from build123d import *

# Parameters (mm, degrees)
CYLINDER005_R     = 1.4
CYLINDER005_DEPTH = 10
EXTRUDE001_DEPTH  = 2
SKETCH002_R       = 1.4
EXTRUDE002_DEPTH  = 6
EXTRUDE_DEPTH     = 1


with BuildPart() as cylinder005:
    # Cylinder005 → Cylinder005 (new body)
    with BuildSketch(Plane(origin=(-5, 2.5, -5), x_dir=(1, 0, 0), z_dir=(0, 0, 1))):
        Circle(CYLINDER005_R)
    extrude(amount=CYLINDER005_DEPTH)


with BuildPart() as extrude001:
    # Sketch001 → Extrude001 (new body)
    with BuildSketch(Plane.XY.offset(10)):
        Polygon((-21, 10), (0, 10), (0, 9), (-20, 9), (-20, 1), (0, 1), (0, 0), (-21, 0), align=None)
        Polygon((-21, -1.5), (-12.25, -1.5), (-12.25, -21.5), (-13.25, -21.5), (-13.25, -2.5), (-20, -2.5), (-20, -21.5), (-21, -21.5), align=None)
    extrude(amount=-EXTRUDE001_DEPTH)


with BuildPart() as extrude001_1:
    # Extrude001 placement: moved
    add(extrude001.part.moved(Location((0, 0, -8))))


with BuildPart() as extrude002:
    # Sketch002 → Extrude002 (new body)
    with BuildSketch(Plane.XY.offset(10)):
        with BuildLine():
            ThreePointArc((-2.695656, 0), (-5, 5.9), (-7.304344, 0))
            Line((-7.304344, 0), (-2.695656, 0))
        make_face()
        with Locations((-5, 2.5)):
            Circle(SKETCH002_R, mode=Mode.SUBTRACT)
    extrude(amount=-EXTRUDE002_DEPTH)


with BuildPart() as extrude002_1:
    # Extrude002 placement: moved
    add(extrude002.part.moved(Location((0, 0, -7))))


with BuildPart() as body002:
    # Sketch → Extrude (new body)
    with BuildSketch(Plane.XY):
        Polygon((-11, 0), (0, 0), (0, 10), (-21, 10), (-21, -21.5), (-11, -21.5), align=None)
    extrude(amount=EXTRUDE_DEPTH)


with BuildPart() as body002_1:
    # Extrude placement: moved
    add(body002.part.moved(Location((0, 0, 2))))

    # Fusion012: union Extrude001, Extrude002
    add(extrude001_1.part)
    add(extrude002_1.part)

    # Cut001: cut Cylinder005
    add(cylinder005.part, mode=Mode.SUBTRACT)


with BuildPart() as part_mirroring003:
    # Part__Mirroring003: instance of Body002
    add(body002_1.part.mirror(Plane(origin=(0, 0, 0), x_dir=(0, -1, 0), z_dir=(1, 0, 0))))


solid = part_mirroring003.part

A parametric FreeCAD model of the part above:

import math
import FreeCAD as App
import Part
import Sketcher

V = App.Vector
Q = App.Units.Quantity

doc = App.newDocument("Part")
params = doc.addObject("Spreadsheet::Sheet", "Params")
for row, (alias, value) in enumerate([
    ("sketch1_diameter", "2.8 mm"),
    ("pad1_length", "10 mm"),
    ("sketch2_width", "21 mm"),
    ("sketch2_width2", "20 mm"),
    ("sketch2_height", "10 mm"),
    ("sketch2_height2", "19 mm"),
    ("sketch2_width3", "8.75 mm"),
    ("pad2_length", "2 mm"),
    ("sketch3_diameter", "2.8 mm"),
    ("sketch3_radius", "3.4 mm"),
    ("pad3_length", "6 mm"),
    ("sketch4_width", "11 mm"),
    ("sketch4_width2", "21 mm"),
    ("sketch4_height", "31.5 mm"),
    ("pad4_length", "1 mm"),
], start=1):
    params.set(f"A{row}", alias)
    params.set(f"B{row}", "=" + value)
    params.setAlias(f"B{row}", alias)

body = doc.addObject("PartDesign::Body", "Body")

# Sketch on XY plane
sketch1 = doc.addObject("Sketcher::SketchObject", "Sketch")
body.addObject(sketch1)
sketch1.AttachmentSupport = (doc.XY_Plane, [""])
sketch1.MapMode = "FlatFace"
sketch1.AttachmentOffset = App.Placement(V(0, 0, -5), App.Rotation())
sketch1.addGeometry(Part.Circle(V(-5, 2.5, 0), V(0, 0, 1), 1.4), False)
sketch1.addConstraint([
    Sketcher.Constraint("Diameter", 0, Q("2.8 mm")),
    Sketcher.Constraint("DistanceX", 0, 3, -1, 1, Q("5 mm")),
    Sketcher.Constraint("DistanceY", -1, 1, 0, 3, Q("2.5 mm")),
])
sketch1.setExpression("Constraints[0]", "Params.sketch1_diameter")
pad1 = doc.addObject("PartDesign::Pad", "Pad")
body.addObject(pad1)
pad1.Profile = sketch1
pad1.setExpression("Length", "Params.pad1_length")
body2 = doc.addObject("PartDesign::Body", "Body001")
body2.AllowCompound = True

# Sketch on XY plane
sketch2 = doc.addObject("Sketcher::SketchObject", "Sketch001")
body2.addObject(sketch2)
sketch2.AttachmentSupport = (doc.getObject("XY_Plane001"), [""])
sketch2.MapMode = "FlatFace"
sketch2.AttachmentOffset = App.Placement(V(0, 0, 10), App.Rotation())
sketch2.addGeometry([
    Part.LineSegment(V(0, 10, 0), V(-21, 10, 0)),  # 0
    Part.LineSegment(V(-21, 10, 0), V(-21, 0, 0)),  # 1
    Part.LineSegment(V(-21, 0, 0), V(0, 0, 0)),  # 2
    Part.LineSegment(V(0, 0, 0), V(0, 1, 0)),  # 3
    Part.LineSegment(V(0, 1, 0), V(-20, 1, 0)),  # 4
    Part.LineSegment(V(-20, 1, 0), V(-20, 9, 0)),  # 5
    Part.LineSegment(V(-20, 9, 0), V(0, 9, 0)),  # 6
    Part.LineSegment(V(0, 9, 0), V(0, 10, 0)),  # 7
    Part.LineSegment(V(-12.2, -1.5, 0), V(-21, -1.5, 0)),  # 8
    Part.LineSegment(V(-21, -1.5, 0), V(-21, -21.5, 0)),  # 9
    Part.LineSegment(V(-21, -21.5, 0), V(-20, -21.5, 0)),  # 10
    Part.LineSegment(V(-20, -21.5, 0), V(-20, -2.5, 0)),  # 11
    Part.LineSegment(V(-20, -2.5, 0), V(-13.2, -2.5, 0)),  # 12
    Part.LineSegment(V(-13.2, -2.5, 0), V(-13.2, -21.5, 0)),  # 13
    Part.LineSegment(V(-13.2, -21.5, 0), V(-12.2, -21.5, 0)),  # 14
    Part.LineSegment(V(-12.2, -21.5, 0), V(-12.2, -1.5, 0)),  # 15
], False)
sketch2.addConstraint([
    Sketcher.Constraint("Coincident", 0, 2, 1, 1),
    Sketcher.Constraint("Coincident", 1, 2, 2, 1),
    Sketcher.Constraint("Coincident", 2, 2, 3, 1),
    Sketcher.Constraint("Coincident", 3, 2, 4, 1),
    Sketcher.Constraint("Coincident", 4, 2, 5, 1),
    Sketcher.Constraint("Coincident", 5, 2, 6, 1),
    Sketcher.Constraint("Coincident", 6, 2, 7, 1),
    Sketcher.Constraint("Coincident", 7, 2, 0, 1),
    Sketcher.Constraint("Coincident", 8, 2, 9, 1),
    Sketcher.Constraint("Coincident", 9, 2, 10, 1),
    Sketcher.Constraint("Coincident", 10, 2, 11, 1),
    Sketcher.Constraint("Coincident", 11, 2, 12, 1),
    Sketcher.Constraint("Coincident", 12, 2, 13, 1),
    Sketcher.Constraint("Coincident", 13, 2, 14, 1),
    Sketcher.Constraint("Coincident", 14, 2, 15, 1),
    Sketcher.Constraint("Coincident", 15, 2, 8, 1),
    Sketcher.Constraint("Horizontal", 0),
    Sketcher.Constraint("Vertical", 1),
    Sketcher.Constraint("Horizontal", 2),
    Sketcher.Constraint("Vertical", 3),
    Sketcher.Constraint("Horizontal", 4),
    Sketcher.Constraint("Vertical", 5),
    Sketcher.Constraint("Horizontal", 6),
    Sketcher.Constraint("Vertical", 7),
    Sketcher.Constraint("Horizontal", 8),
    Sketcher.Constraint("Vertical", 9),
    Sketcher.Constraint("Horizontal", 10),
    Sketcher.Constraint("Vertical", 11),
    Sketcher.Constraint("Horizontal", 12),
    Sketcher.Constraint("Vertical", 13),
    Sketcher.Constraint("Horizontal", 14),
    Sketcher.Constraint("Vertical", 15),
    Sketcher.Constraint("Coincident", 2, 2, -1, 1),
    Sketcher.Constraint("PointOnObject", 6, 2, -2),
    Sketcher.Constraint("Horizontal", 10, 2, 13, 2),
    Sketcher.Constraint("Vertical", 1, 2, 8, 2),
    Sketcher.Constraint("Vertical", 5, 2, 10, 2),
    Sketcher.Constraint("Equal", 10, 14),
    Sketcher.Constraint("Equal", 14, 3),
    Sketcher.Constraint("Equal", 3, 7),
    Sketcher.Constraint("Equal", 6, 9),
    Sketcher.Constraint("DistanceX", 0, 2, 0, 1, Q("21 mm")),
    Sketcher.Constraint("DistanceX", 4, 2, 4, 1, Q("20 mm")),
    Sketcher.Constraint("DistanceY", 1, 2, 1, 1, Q("10 mm")),
    Sketcher.Constraint("DistanceY", 11, 1, 11, 2, Q("19 mm")),
    Sketcher.Constraint("DistanceX", 8, 2, 8, 1, Q("8.75 mm")),
    Sketcher.Constraint("DistanceY", 8, 2, -1, 1, Q("1.5 mm")),
])
sketch2.setExpression("Constraints[41]", "Params.sketch2_width")
sketch2.setExpression("Constraints[42]", "Params.sketch2_width2")
sketch2.setExpression("Constraints[43]", "Params.sketch2_height")
sketch2.setExpression("Constraints[44]", "Params.sketch2_height2")
sketch2.setExpression("Constraints[45]", "Params.sketch2_width3")
pad2 = doc.addObject("PartDesign::Pad", "Pad001")
body2.addObject(pad2)
pad2.Profile = sketch2
pad2.setExpression("Length", "Params.pad2_length")
pad2.Reversed = True
body3 = doc.addObject("PartDesign::Body", "Body002")
body3.AllowCompound = True
doc.recompute()

body2.Placement = App.Placement(V(0, 0, -8), App.Rotation(V(0, 0, 1), 0))
boolean = doc.addObject("PartDesign::Boolean", "Boolean")
body3.addObject(boolean)
boolean.Type = "Fuse"
boolean.addObjects([body2])
body4 = doc.addObject("PartDesign::Body", "Body003")

# Sketch on XY plane
sketch3 = doc.addObject("Sketcher::SketchObject", "Sketch002")
body4.addObject(sketch3)
sketch3.AttachmentSupport = (doc.getObject("XY_Plane003"), [""])
sketch3.MapMode = "FlatFace"
sketch3.AttachmentOffset = App.Placement(V(0, 0, 10), App.Rotation())
sketch3.addGeometry([
    Part.ArcOfCircle(Part.Circle(V(-5, 2.5, 0), V(0, 0, 1), 3.4), math.radians(-47), math.radians(227)),
    Part.LineSegment(V(-7.3, 0, 0), V(-2.7, 0, 0)),
    Part.Circle(V(-5, 2.5, 0), V(0, 0, 1), 1.4),
], False)
sketch3.addConstraint([
    Sketcher.Constraint("Coincident", 0, 1, 1, 2),
    Sketcher.Constraint("Coincident", 1, 1, 0, 2),
    Sketcher.Constraint("Horizontal", 1),
    Sketcher.Constraint("Coincident", 2, 3, 0, 3),
    Sketcher.Constraint("PointOnObject", 0, 1, -1),
    Sketcher.Constraint("Diameter", 2, Q("2.8 mm")),
    Sketcher.Constraint("Radius", 0, Q("3.4 mm")),
    Sketcher.Constraint("DistanceX", 0, 3, -1, 1, Q("5 mm")),
    Sketcher.Constraint("DistanceY", -1, 1, 0, 3, Q("2.5 mm")),
])
sketch3.setExpression("Constraints[5]", "Params.sketch3_diameter")
sketch3.setExpression("Constraints[6]", "Params.sketch3_radius")
pad3 = doc.addObject("PartDesign::Pad", "Pad002")
body4.addObject(pad3)
pad3.Profile = sketch3
pad3.setExpression("Length", "Params.pad3_length")
pad3.Reversed = True
body5 = doc.addObject("PartDesign::Body", "Body004")
doc.recompute()

body4.Placement = App.Placement(V(0, 0, -7), App.Rotation(V(0, 0, 1), 0))
boolean2 = doc.addObject("PartDesign::Boolean", "Boolean001")
body5.addObject(boolean2)
boolean2.Type = "Fuse"
boolean2.addObjects([body4])
body6 = doc.addObject("PartDesign::Body", "Body005")

# Sketch on XY plane
sketch4 = doc.addObject("Sketcher::SketchObject", "Sketch003")
body6.addObject(sketch4)
sketch4.AttachmentSupport = (doc.getObject("XY_Plane005"), [""])
sketch4.MapMode = "FlatFace"
sketch4.addGeometry([
    Part.LineSegment(V(-11, 0, 0), V(0, 0, 0)),  # 0
    Part.LineSegment(V(0, 0, 0), V(0, 10, 0)),  # 1
    Part.LineSegment(V(0, 10, 0), V(-21, 10, 0)),  # 2
    Part.LineSegment(V(-21, 10, 0), V(-21, -22, 0)),  # 3
    Part.LineSegment(V(-21, -22, 0), V(-11, -22, 0)),  # 4
    Part.LineSegment(V(-11, -22, 0), V(-11, 0, 0)),  # 5
], False)
sketch4.addConstraint([
    Sketcher.Constraint("Coincident", 0, 2, 1, 1),
    Sketcher.Constraint("Coincident", 1, 2, 2, 1),
    Sketcher.Constraint("Coincident", 2, 2, 3, 1),
    Sketcher.Constraint("Coincident", 3, 2, 4, 1),
    Sketcher.Constraint("Coincident", 4, 2, 5, 1),
    Sketcher.Constraint("Coincident", 5, 2, 0, 1),
    Sketcher.Constraint("Horizontal", 0),
    Sketcher.Constraint("Vertical", 1),
    Sketcher.Constraint("Horizontal", 2),
    Sketcher.Constraint("Vertical", 3),
    Sketcher.Constraint("Horizontal", 4),
    Sketcher.Constraint("Vertical", 5),
    Sketcher.Constraint("Coincident", 0, 2, -1, 1),
    Sketcher.Constraint("Equal", 4, 1),
    Sketcher.Constraint("DistanceX", 0, 1, 0, 2, Q("11 mm")),
    Sketcher.Constraint("DistanceX", 2, 2, 2, 1, Q("21 mm")),
    Sketcher.Constraint("DistanceY", 3, 2, 3, 1, Q("31.5 mm")),
])
sketch4.setExpression("Constraints[14]", "Params.sketch4_width")
sketch4.setExpression("Constraints[15]", "Params.sketch4_width2")
sketch4.setExpression("Constraints[16]", "Params.sketch4_height")
pad4 = doc.addObject("PartDesign::Pad", "Pad003")
body6.addObject(pad4)
pad4.Profile = sketch4
pad4.setExpression("Length", "Params.pad4_length")
body7 = doc.addObject("PartDesign::Body", "Body006")
doc.recompute()

body6.Placement = App.Placement(V(0, 0, 2), App.Rotation(V(0, 0, 1), 0))
boolean3 = doc.addObject("PartDesign::Boolean", "Boolean002")
body7.addObject(boolean3)
boolean3.Type = "Fuse"
boolean3.addObjects([body6])
doc.recompute()

boolean4 = doc.addObject("PartDesign::Boolean", "Boolean003")
body7.addObject(boolean4)
boolean4.Type = "Fuse"
boolean4.addObjects([body3])
doc.recompute()

boolean5 = doc.addObject("PartDesign::Boolean", "Boolean004")
body7.addObject(boolean5)
boolean5.Type = "Fuse"
boolean5.addObjects([body5])
doc.recompute()

boolean6 = doc.addObject("PartDesign::Boolean", "Boolean005")
body7.addObject(boolean6)
boolean6.Type = "Cut"
boolean6.addObjects([body])
body8 = doc.addObject("PartDesign::Body", "Body007")
doc.recompute()

mirroring = doc.addObject("Part::Mirroring", "Mirroring")
mirroring.Source = body7
mirroring.Base = V(0, 0, 0)
mirroring.Normal = V(1, 0, 0)
body8.BaseFeature = mirroring
doc.recompute()
body7.Visibility = False
mirroring.Visibility = False

doc.recompute()
